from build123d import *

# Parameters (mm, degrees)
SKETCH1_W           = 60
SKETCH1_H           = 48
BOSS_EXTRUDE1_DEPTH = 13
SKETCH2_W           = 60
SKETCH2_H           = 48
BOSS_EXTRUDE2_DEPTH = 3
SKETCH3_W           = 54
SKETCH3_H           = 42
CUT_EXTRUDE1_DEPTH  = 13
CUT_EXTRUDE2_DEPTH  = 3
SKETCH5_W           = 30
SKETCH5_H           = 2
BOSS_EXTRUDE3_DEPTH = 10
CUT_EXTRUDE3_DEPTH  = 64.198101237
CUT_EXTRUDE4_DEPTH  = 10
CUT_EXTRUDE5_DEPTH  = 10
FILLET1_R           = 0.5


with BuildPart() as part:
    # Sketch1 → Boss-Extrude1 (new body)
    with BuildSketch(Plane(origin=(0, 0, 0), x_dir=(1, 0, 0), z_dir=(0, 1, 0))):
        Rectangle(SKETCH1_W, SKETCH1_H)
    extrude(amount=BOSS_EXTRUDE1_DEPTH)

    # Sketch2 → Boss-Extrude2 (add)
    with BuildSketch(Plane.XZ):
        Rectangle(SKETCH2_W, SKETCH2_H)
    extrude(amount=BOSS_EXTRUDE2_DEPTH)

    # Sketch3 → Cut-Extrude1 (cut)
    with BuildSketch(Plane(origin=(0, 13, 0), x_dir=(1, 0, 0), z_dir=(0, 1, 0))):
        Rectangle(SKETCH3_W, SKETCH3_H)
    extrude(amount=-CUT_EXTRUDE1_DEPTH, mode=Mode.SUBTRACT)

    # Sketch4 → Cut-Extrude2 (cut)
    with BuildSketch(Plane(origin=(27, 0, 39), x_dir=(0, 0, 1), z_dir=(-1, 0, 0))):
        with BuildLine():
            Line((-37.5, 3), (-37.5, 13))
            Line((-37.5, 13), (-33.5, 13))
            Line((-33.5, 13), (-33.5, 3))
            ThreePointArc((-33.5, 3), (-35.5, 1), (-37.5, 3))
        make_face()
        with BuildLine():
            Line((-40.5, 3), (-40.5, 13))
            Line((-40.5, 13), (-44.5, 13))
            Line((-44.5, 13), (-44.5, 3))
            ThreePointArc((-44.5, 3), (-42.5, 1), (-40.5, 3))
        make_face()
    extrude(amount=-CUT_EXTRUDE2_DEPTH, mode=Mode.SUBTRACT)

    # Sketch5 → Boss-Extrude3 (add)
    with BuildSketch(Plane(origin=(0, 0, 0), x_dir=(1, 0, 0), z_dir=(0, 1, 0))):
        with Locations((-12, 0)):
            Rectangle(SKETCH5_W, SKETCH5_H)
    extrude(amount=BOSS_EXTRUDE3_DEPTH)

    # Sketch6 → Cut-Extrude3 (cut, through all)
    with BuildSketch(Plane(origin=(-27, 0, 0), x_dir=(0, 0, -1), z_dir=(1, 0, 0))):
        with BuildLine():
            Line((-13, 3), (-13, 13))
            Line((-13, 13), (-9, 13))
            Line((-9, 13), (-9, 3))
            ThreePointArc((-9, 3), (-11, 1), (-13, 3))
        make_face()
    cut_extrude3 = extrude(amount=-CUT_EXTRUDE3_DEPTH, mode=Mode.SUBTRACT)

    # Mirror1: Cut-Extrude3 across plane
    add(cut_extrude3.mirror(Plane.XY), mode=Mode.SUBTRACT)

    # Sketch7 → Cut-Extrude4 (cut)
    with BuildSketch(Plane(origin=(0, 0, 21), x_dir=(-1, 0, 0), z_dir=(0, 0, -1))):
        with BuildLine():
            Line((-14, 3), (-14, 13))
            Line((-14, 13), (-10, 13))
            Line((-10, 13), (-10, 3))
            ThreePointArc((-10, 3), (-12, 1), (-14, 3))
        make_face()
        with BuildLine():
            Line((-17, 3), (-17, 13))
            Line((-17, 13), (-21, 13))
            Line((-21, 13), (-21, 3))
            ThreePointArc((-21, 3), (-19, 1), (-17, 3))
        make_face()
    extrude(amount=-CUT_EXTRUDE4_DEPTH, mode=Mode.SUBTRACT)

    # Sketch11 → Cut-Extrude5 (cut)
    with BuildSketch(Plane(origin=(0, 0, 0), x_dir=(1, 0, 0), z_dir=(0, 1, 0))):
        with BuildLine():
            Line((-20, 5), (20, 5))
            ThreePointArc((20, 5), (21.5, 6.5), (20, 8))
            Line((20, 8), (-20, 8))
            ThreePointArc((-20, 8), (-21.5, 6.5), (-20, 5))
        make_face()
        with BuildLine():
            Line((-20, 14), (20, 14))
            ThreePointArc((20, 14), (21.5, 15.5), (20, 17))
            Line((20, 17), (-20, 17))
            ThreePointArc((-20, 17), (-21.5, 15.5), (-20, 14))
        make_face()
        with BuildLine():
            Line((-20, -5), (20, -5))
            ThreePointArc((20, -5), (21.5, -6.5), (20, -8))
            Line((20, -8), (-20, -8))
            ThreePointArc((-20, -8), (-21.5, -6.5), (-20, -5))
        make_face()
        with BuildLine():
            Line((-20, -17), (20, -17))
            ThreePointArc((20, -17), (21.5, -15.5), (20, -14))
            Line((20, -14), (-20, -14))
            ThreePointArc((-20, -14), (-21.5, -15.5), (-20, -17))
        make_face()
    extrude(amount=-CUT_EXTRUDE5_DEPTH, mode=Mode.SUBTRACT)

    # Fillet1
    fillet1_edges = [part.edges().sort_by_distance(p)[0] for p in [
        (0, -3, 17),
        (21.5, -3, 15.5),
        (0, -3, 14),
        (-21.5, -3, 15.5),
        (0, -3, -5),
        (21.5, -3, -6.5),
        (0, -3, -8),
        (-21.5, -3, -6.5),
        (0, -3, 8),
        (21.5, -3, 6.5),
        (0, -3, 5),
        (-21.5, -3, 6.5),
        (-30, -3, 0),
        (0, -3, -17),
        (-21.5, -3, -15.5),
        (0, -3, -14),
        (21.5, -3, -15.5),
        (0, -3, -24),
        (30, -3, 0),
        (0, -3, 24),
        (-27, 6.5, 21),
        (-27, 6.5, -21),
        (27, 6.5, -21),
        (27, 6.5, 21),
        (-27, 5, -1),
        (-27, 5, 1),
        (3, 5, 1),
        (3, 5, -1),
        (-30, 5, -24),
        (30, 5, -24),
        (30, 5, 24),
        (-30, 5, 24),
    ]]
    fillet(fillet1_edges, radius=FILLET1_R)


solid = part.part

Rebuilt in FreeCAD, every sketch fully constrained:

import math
import FreeCAD as App
import Part
import Sketcher

V = App.Vector


def edges_at(feature, points):
    """Names of the edges that pass closest to the given points."""
    edges = feature.Shape.Edges
    near = lambda p: min(range(len(edges)), key=lambda i: edges[i].distToShape(Part.Vertex(*p))[0])
    return sorted({f"Edge{near(p) + 1}" for p in points})

doc = App.newDocument("Part")
body = doc.addObject("PartDesign::Body", "Body")

# Sketch on XZ plane
sketch1 = body.newObject("Sketcher::SketchObject", "Sketch")
sketch1.AttachmentSupport = (doc.getObject("XZ_Plane"), [""])
sketch1.MapMode = "FlatFace"
sketch1.addGeometry([
    Part.LineSegment(V(-30, -24, 0), V(-30, 24, 0)),
    Part.LineSegment(V(-30, 24, 0), V(30, 24, 0)),
    Part.LineSegment(V(30, 24, 0), V(30, -24, 0)),
    Part.LineSegment(V(30, -24, 0), V(-30, -24, 0)),
], False)
sketch1.addConstraint([
    Sketcher.Constraint("Coincident", 0, 2, 1, 1),
    Sketcher.Constraint("Coincident", 1, 2, 2, 1),
    Sketcher.Constraint("Coincident", 2, 2, 3, 1),
    Sketcher.Constraint("Coincident", 3, 2, 0, 1),
    Sketcher.Constraint("Vertical", 0),
    Sketcher.Constraint("Horizontal", 1),
    Sketcher.Constraint("Vertical", 2),
    Sketcher.Constraint("Horizontal", 3),
    Sketcher.Constraint("Symmetric", 0, 2, 2, 2, -1, 1),
    Sketcher.Constraint("DistanceX", 1, 1, 1, 2, 60.0),
    Sketcher.Constraint("DistanceY", 0, 1, 0, 2, 48.0),
])
pad1 = body.newObject("PartDesign::Pad", "Pad")
pad1.Profile = sketch1
pad1.Length = 13
pad1.Reversed = True

# Sketch on XZ plane
sketch2 = body.newObject("Sketcher::SketchObject", "Sketch001")
sketch2.AttachmentSupport = (doc.getObject("XZ_Plane"), [""])
sketch2.MapMode = "FlatFace"
sketch2.addGeometry([
    Part.LineSegment(V(-30, 24, 0), V(-30, -24, 0)),
    Part.LineSegment(V(-30, -24, 0), V(30, -24, 0)),
    Part.LineSegment(V(30, -24, 0), V(30, 24, 0)),
    Part.LineSegment(V(30, 24, 0), V(-30, 24, 0)),
], False)
sketch2.addConstraint([
    Sketcher.Constraint("Coincident", 0, 2, 1, 1),
    Sketcher.Constraint("Coincident", 1, 2, 2, 1),
    Sketcher.Constraint("Coincident", 2, 2, 3, 1),
    Sketcher.Constraint("Coincident", 3, 2, 0, 1),
    Sketcher.Constraint("Vertical", 0),
    Sketcher.Constraint("Horizontal", 1),
    Sketcher.Constraint("Vertical", 2),
    Sketcher.Constraint("Horizontal", 3),
    Sketcher.Constraint("Symmetric", 0, 2, 2, 2, -1, 1),
    Sketcher.Constraint("DistanceX", 1, 1, 1, 2, 60.0),
    Sketcher.Constraint("DistanceY", 0, 2, 0, 1, 48.0),
])
pad2 = body.newObject("PartDesign::Pad", "Pad001")
pad2.Profile = sketch2
pad2.Length = 3

# Sketch on XZ plane
sketch3 = body.newObject("Sketcher::SketchObject", "Sketch002")
sketch3.AttachmentSupport = (doc.getObject("XZ_Plane"), [""])
sketch3.MapMode = "FlatFace"
sketch3.AttachmentOffset = App.Placement(V(0, 0, -13), App.Rotation())
sketch3.addGeometry([
    Part.LineSegment(V(-27, -21, 0), V(-27, 21, 0)),
    Part.LineSegment(V(-27, 21, 0), V(27, 21, 0)),
    Part.LineSegment(V(27, 21, 0), V(27, -21, 0)),
    Part.LineSegment(V(27, -21, 0), V(-27, -21, 0)),
], False)
sketch3.addConstraint([
    Sketcher.Constraint("Coincident", 0, 2, 1, 1),
    Sketcher.Constraint("Coincident", 1, 2, 2, 1),
    Sketcher.Constraint("Coincident", 2, 2, 3, 1),
    Sketcher.Constraint("Coincident", 3, 2, 0, 1),
    Sketcher.Constraint("Vertical", 0),
    Sketcher.Constraint("Horizontal", 1),
    Sketcher.Constraint("Vertical", 2),
    Sketcher.Constraint("Horizontal", 3),
    Sketcher.Constraint("Symmetric", 0, 2, 2, 2, -1, 1),
    Sketcher.Constraint("DistanceX", 1, 1, 1, 2, 54.0),
    Sketcher.Constraint("DistanceY", 0, 1, 0, 2, 42.0),
])
pocket1 = body.newObject("PartDesign::Pocket", "Pocket")
pocket1.Profile = sketch3
pocket1.Length = 13
pocket1.Reversed = True

# Sketch on YZ plane
sketch4 = body.newObject("Sketcher::SketchObject", "Sketch003")
sketch4.AttachmentSupport = (doc.getObject("YZ_Plane"), [""])
sketch4.MapMode = "FlatFace"
sketch4.AttachmentOffset = App.Placement(V(0, 0, 27), App.Rotation())
sketch4.addGeometry([
    Part.LineSegment(V(13, 1.5, 0), V(3, 1.5, 0)),  # 0
    Part.ArcOfCircle(Part.Circle(V(3, 3.5, 0), V(0, 0, 1), 2), math.radians(90), math.radians(270)),  # 1
    Part.LineSegment(V(3, 5.5, 0), V(13, 5.5, 0)),  # 2
    Part.LineSegment(V(13, 5.5, 0), V(13, 1.5, 0)),  # 3
    Part.LineSegment(V(3, -1.5, 0), V(13, -1.5, 0)),  # 4
    Part.LineSegment(V(13, -1.5, 0), V(13, -5.5, 0)),  # 5
    Part.LineSegment(V(13, -5.5, 0), V(3, -5.5, 0)),  # 6
    Part.ArcOfCircle(Part.Circle(V(3, -3.5, 0), V(0, 0, 1), 2), math.radians(90), math.radians(270)),  # 7
], False)
sketch4.addConstraint([
    Sketcher.Constraint("Tangent", 0, 2, 1, 2),
    Sketcher.Constraint("Tangent", 1, 1, 2, 1),
    Sketcher.Constraint("Coincident", 2, 2, 3, 1),
    Sketcher.Constraint("Coincident", 3, 2, 0, 1),
    Sketcher.Constraint("Coincident", 4, 2, 5, 1),
    Sketcher.Constraint("Coincident", 5, 2, 6, 1),
    Sketcher.Constraint("Tangent", 6, 2, 7, 2),
    Sketcher.Constraint("Tangent", 7, 1, 4, 1),
    Sketcher.Constraint("Horizontal", 0),
    Sketcher.Constraint("Horizontal", 2),
    Sketcher.Constraint("Vertical", 3),
    Sketcher.Constraint("Horizontal", 4),
    Sketcher.Constraint("Vertical", 5),
    Sketcher.Constraint("Horizontal", 6),
    Sketcher.Constraint("Equal", 1, 7),
    Sketcher.Constraint("Symmetric", 1, 3, 7, 3, -1),
    Sketcher.Constraint("Vertical", 3, 2, 4, 2),
    Sketcher.Constraint("Radius", 1, 2.0),
    Sketcher.Constraint("DistanceX", 0, 2, 0, 1, 10.0),
    Sketcher.Constraint("DistanceX", -1, 1, 1, 3, 3.0),
    Sketcher.Constraint("DistanceY", 7, 3, 1, 3, 7.0),
])
pocket2 = body.newObject("PartDesign::Pocket", "Pocket001")
pocket2.Profile = sketch4
pocket2.Length = 3
pocket2.Reversed = True

# Sketch on XZ plane
sketch5 = body.newObject("Sketcher::SketchObject", "Sketch004")
sketch5.AttachmentSupport = (doc.getObject("XZ_Plane"), [""])
sketch5.MapMode = "FlatFace"
sketch5.addGeometry([
    Part.LineSegment(V(-27, -1, 0), V(-27, 1, 0)),
    Part.LineSegment(V(-27, 1, 0), V(3, 1, 0)),
    Part.LineSegment(V(3, 1, 0), V(3, -1, 0)),
    Part.LineSegment(V(3, -1, 0), V(-27, -1, 0)),
], False)
sketch5.addConstraint([
    Sketcher.Constraint("Coincident", 0, 2, 1, 1),
    Sketcher.Constraint("Coincident", 1, 2, 2, 1),
    Sketcher.Constraint("Coincident", 2, 2, 3, 1),
    Sketcher.Constraint("Coincident", 3, 2, 0, 1),
    Sketcher.Constraint("Vertical", 0),
    Sketcher.Constraint("Horizontal", 1),
    Sketcher.Constraint("Vertical", 2),
    Sketcher.Constraint("Horizontal", 3),
    Sketcher.Constraint("DistanceX", 1, 1, 1, 2, 30.0),
    Sketcher.Constraint("DistanceY", 0, 1, 0, 2, 2.0),
    Sketcher.Constraint("DistanceX", 0, 2, -1, 1, 27.0),
    Sketcher.Constraint("DistanceY", -1, 1, 0, 2, 1.0),
])
pad3 = body.newObject("PartDesign::Pad", "Pad002")
pad3.Profile = sketch5
pad3.Length = 10
pad3.Reversed = True

# Sketch on YZ plane
sketch6 = body.newObject("Sketcher::SketchObject", "Sketch005")
sketch6.AttachmentSupport = (doc.getObject("YZ_Plane"), [""])
sketch6.MapMode = "FlatFace"
sketch6.AttachmentOffset = App.Placement(V(0, 0, -27), App.Rotation())
sketch6.addGeometry([
    Part.LineSegment(V(13, 13, 0), V(3, 13, 0)),
    Part.ArcOfCircle(Part.Circle(V(3, 11, 0), V(0, 0, 1), 2), math.radians(90), math.radians(270)),
    Part.LineSegment(V(3, 9, 0), V(13, 9, 0)),
    Part.LineSegment(V(13, 9, 0), V(13, 13, 0)),
], False)
sketch6.addConstraint([
    Sketcher.Constraint("Tangent", 0, 2, 1, 1),
    Sketcher.Constraint("Tangent", 1, 2, 2, 1),
    Sketcher.Constraint("Coincident", 2, 2, 3, 1),
    Sketcher.Constraint("Coincident", 3, 2, 0, 1),
    Sketcher.Constraint("Horizontal", 0),
    Sketcher.Constraint("Horizontal", 2),
    Sketcher.Constraint("Vertical", 3),
    Sketcher.Constraint("Radius", 1, 2.0),
    Sketcher.Constraint("DistanceX", 0, 2, 0, 1, 10.0),
    Sketcher.Constraint("DistanceX", -1, 1, 1, 3, 3.0),
    Sketcher.Constraint("DistanceY", -1, 1, 1, 3, 11.0),
])
pocket3 = body.newObject("PartDesign::Pocket", "Pocket002")
pocket3.Profile = sketch6
pocket3.Type = "ThroughAll"
doc.recompute()

mirrored = body.newObject("PartDesign::Mirrored", "Mirrored")
mirrored.Originals = [pocket3]
mirrored.MirrorPlane = (doc.getObject("XY_Plane"), [""])
body.Tip = mirrored

# Sketch on XY plane
sketch7 = body.newObject("Sketcher::SketchObject", "Sketch006")
sketch7.AttachmentSupport = (doc.getObject("XY_Plane"), [""])
sketch7.MapMode = "FlatFace"
sketch7.AttachmentOffset = App.Placement(V(0, 0, 21), App.Rotation())
sketch7.addGeometry([
    Part.LineSegment(V(14, 13, 0), V(14, 3, 0)),  # 0
    Part.ArcOfCircle(Part.Circle(V(12, 3, 0), V(0, 0, 1), 2), math.radians(180), math.radians(360)),  # 1
    Part.LineSegment(V(10, 3, 0), V(10, 13, 0)),  # 2
    Part.LineSegment(V(10, 13, 0), V(14, 13, 0)),  # 3
    Part.LineSegment(V(17, 3, 0), V(17, 13, 0)),  # 4
    Part.LineSegment(V(17, 13, 0), V(21, 13, 0)),  # 5
    Part.LineSegment(V(21, 13, 0), V(21, 3, 0)),  # 6
    Part.ArcOfCircle(Part.Circle(V(19, 3, 0), V(0, 0, 1), 2), math.radians(180), math.radians(360)),  # 7
], False)
sketch7.addConstraint([
    Sketcher.Constraint("Tangent", 0, 2, 1, 2),
    Sketcher.Constraint("Tangent", 1, 1, 2, 1),
    Sketcher.Constraint("Coincident", 2, 2, 3, 1),
    Sketcher.Constraint("Coincident", 3, 2, 0, 1),
    Sketcher.Constraint("Coincident", 4, 2, 5, 1),
    Sketcher.Constraint("Coincident", 5, 2, 6, 1),
    Sketcher.Constraint("Tangent", 6, 2, 7, 2),
    Sketcher.Constraint("Tangent", 7, 1, 4, 1),
    Sketcher.Constraint("Vertical", 0),
    Sketcher.Constraint("Vertical", 2),
    Sketcher.Constraint("Horizontal", 3),
    Sketcher.Constraint("Vertical", 4),
    Sketcher.Constraint("Horizontal", 5),
    Sketcher.Constraint("Vertical", 6),
    Sketcher.Constraint("Equal", 1, 7),
    Sketcher.Constraint("Horizontal", 1, 3, 7, 3),
    Sketcher.Constraint("Horizontal", 3, 2, 4, 2),
    Sketcher.Constraint("Radius", 1, 2.0),
    Sketcher.Constraint("DistanceY", 0, 2, 0, 1, 10.0),
    Sketcher.Constraint("DistanceX", -1, 1, 1, 3, 12.0),
    Sketcher.Constraint("DistanceY", -1, 1, 1, 3, 3.0),
    Sketcher.Constraint("DistanceX", -1, 1, 7, 3, 19.0),
])
pocket4 = body.newObject("PartDesign::Pocket", "Pocket003")
pocket4.Profile = sketch7
pocket4.Length = 10
pocket4.Reversed = True

# Sketch on XZ plane
sketch8 = body.newObject("Sketcher::SketchObject", "Sketch007")
sketch8.AttachmentSupport = (doc.getObject("XZ_Plane"), [""])
sketch8.MapMode = "FlatFace"
sketch8.addGeometry([
    Part.LineSegment(V(-20, -5, 0), V(20, -5, 0)),  # 0
    Part.ArcOfCircle(Part.Circle(V(20, -6.5, 0), V(0, 0, 1), 1.5), math.radians(-90), math.radians(90)),  # 1
    Part.LineSegment(V(20, -8, 0), V(-20, -8, 0)),  # 2
    Part.ArcOfCircle(Part.Circle(V(-20, -6.5, 0), V(0, 0, 1), 1.5), math.radians(90), math.radians(270)),  # 3
    Part.LineSegment(V(-20, -14, 0), V(20, -14, 0)),  # 4
    Part.ArcOfCircle(Part.Circle(V(20, -15.5, 0), V(0, 0, 1), 1.5), math.radians(-90), math.radians(90)),  # 5
    Part.LineSegment(V(20, -17, 0), V(-20, -17, 0)),  # 6
    Part.ArcOfCircle(Part.Circle(V(-20, -15.5, 0), V(0, 0, 1), 1.5), math.radians(90), math.radians(270)),  # 7
    Part.LineSegment(V(20, 5, 0), V(-20, 5, 0)),  # 8
    Part.ArcOfCircle(Part.Circle(V(-20, 6.5, 0), V(0, 0, 1), 1.5), math.radians(90), math.radians(270)),  # 9
    Part.LineSegment(V(-20, 8, 0), V(20, 8, 0)),  # 10
    Part.ArcOfCircle(Part.Circle(V(20, 6.5, 0), V(0, 0, 1), 1.5), math.radians(-90), math.radians(90)),  # 11
    Part.LineSegment(V(-20, 17, 0), V(20, 17, 0)),  # 12
    Part.ArcOfCircle(Part.Circle(V(20, 15.5, 0), V(0, 0, 1), 1.5), math.radians(-90), math.radians(90)),  # 13
    Part.LineSegment(V(20, 14, 0), V(-20, 14, 0)),  # 14
    Part.ArcOfCircle(Part.Circle(V(-20, 15.5, 0), V(0, 0, 1), 1.5), math.radians(90), math.radians(270)),  # 15
], False)
sketch8.addConstraint([
    Sketcher.Constraint("Tangent", 0, 2, 1, 2),
    Sketcher.Constraint("Tangent", 1, 1, 2, 1),
    Sketcher.Constraint("Tangent", 2, 2, 3, 2),
    Sketcher.Constraint("Tangent", 3, 1, 0, 1),
    Sketcher.Constraint("Tangent", 4, 2, 5, 2),
    Sketcher.Constraint("Tangent", 5, 1, 6, 1),
    Sketcher.Constraint("Tangent", 6, 2, 7, 2),
    Sketcher.Constraint("Tangent", 7, 1, 4, 1),
    Sketcher.Constraint("Tangent", 8, 2, 9, 2),
    Sketcher.Constraint("Tangent", 9, 1, 10, 1),
    Sketcher.Constraint("Tangent", 10, 2, 11, 2),
    Sketcher.Constraint("Tangent", 11, 1, 8, 1),
    Sketcher.Constraint("Tangent", 12, 2, 13, 2),
    Sketcher.Constraint("Tangent", 13, 1, 14, 1),
    Sketcher.Constraint("Tangent", 14, 2, 15, 2),
    Sketcher.Constraint("Tangent", 15, 1, 12, 1),
    Sketcher.Constraint("Horizontal", 0),
    Sketcher.Constraint("Horizontal", 2),
    Sketcher.Constraint("Horizontal", 4),
    Sketcher.Constraint("Horizontal", 6),
    Sketcher.Constraint("Horizontal", 8),
    Sketcher.Constraint("Horizontal", 10),
    Sketcher.Constraint("Horizontal", 12),
    Sketcher.Constraint("Horizontal", 14),
    Sketcher.Constraint("Equal", 3, 5),
    Sketcher.Constraint("Equal", 7, 9),
    Sketcher.Constraint("Equal", 11, 13),
    Sketcher.Constraint("Symmetric", 1, 3, 9, 3, -1, 1),
    Sketcher.Constraint("Symmetric", 7, 3, 13, 3, -1, 1),
    Sketcher.Constraint("Vertical", 1, 3, 5, 3),
    Sketcher.Constraint("Vertical", 3, 3, 7, 3),
    Sketcher.Constraint("Vertical", 7, 3, 9, 3),
    Sketcher.Constraint("Vertical", 5, 3, 11, 3),
    Sketcher.Constraint("Vertical", 9, 3, 15, 3),
    Sketcher.Constraint("Radius", 1, 1.5),
    Sketcher.Constraint("DistanceX", 0, 1, 0, 2, 40.0),
    Sketcher.Constraint("DistanceY", 0, 2, -1, 1, 5.0),
    Sketcher.Constraint("DistanceY", 4, 2, -1, 1, 14.0),
])
pocket5 = body.newObject("PartDesign::Pocket", "Pocket004")
pocket5.Profile = sketch8
pocket5.Length = 10
pocket5.Reversed = True
doc.recompute()

fillet = body.newObject("PartDesign::Fillet", "Fillet")
fillet.Base = (pocket5, edges_at(pocket5, [
    (0, -3, 17),
    (21.5, -3, 15.5),
    (0, -3, 14),
    (-21.5, -3, 15.5),
    (0, -3, -5),
    (21.5, -3, -6.5),
    (0, -3, -8),
    (-21.5, -3, -6.5),
    (0, -3, 8),
    (21.5, -3, 6.5),
    (0, -3, 5),
    (-21.5, -3, 6.5),
    (-30, -3, 0),
    (0, -3, -17),
    (-21.5, -3, -15.5),
    (0, -3, -14),
    (21.5, -3, -15.5),
    (0, -3, -24),
    (30, -3, 0),
    (0, -3, 24),
    (-27, 6.5, 21),
    (-27, 6.5, -21),
    (27, 6.5, -21),
    (27, 6.5, 21),
    (-27, 5, -1),
    (-27, 5, 1),
    (3, 5, 1),
    (3, 5, -1),
    (-30, 5, -24),
    (30, 5, -24),
    (30, 5, 24),
    (-30, 5, 24),
]))
fillet.Radius = 0.5

doc.recompute()
